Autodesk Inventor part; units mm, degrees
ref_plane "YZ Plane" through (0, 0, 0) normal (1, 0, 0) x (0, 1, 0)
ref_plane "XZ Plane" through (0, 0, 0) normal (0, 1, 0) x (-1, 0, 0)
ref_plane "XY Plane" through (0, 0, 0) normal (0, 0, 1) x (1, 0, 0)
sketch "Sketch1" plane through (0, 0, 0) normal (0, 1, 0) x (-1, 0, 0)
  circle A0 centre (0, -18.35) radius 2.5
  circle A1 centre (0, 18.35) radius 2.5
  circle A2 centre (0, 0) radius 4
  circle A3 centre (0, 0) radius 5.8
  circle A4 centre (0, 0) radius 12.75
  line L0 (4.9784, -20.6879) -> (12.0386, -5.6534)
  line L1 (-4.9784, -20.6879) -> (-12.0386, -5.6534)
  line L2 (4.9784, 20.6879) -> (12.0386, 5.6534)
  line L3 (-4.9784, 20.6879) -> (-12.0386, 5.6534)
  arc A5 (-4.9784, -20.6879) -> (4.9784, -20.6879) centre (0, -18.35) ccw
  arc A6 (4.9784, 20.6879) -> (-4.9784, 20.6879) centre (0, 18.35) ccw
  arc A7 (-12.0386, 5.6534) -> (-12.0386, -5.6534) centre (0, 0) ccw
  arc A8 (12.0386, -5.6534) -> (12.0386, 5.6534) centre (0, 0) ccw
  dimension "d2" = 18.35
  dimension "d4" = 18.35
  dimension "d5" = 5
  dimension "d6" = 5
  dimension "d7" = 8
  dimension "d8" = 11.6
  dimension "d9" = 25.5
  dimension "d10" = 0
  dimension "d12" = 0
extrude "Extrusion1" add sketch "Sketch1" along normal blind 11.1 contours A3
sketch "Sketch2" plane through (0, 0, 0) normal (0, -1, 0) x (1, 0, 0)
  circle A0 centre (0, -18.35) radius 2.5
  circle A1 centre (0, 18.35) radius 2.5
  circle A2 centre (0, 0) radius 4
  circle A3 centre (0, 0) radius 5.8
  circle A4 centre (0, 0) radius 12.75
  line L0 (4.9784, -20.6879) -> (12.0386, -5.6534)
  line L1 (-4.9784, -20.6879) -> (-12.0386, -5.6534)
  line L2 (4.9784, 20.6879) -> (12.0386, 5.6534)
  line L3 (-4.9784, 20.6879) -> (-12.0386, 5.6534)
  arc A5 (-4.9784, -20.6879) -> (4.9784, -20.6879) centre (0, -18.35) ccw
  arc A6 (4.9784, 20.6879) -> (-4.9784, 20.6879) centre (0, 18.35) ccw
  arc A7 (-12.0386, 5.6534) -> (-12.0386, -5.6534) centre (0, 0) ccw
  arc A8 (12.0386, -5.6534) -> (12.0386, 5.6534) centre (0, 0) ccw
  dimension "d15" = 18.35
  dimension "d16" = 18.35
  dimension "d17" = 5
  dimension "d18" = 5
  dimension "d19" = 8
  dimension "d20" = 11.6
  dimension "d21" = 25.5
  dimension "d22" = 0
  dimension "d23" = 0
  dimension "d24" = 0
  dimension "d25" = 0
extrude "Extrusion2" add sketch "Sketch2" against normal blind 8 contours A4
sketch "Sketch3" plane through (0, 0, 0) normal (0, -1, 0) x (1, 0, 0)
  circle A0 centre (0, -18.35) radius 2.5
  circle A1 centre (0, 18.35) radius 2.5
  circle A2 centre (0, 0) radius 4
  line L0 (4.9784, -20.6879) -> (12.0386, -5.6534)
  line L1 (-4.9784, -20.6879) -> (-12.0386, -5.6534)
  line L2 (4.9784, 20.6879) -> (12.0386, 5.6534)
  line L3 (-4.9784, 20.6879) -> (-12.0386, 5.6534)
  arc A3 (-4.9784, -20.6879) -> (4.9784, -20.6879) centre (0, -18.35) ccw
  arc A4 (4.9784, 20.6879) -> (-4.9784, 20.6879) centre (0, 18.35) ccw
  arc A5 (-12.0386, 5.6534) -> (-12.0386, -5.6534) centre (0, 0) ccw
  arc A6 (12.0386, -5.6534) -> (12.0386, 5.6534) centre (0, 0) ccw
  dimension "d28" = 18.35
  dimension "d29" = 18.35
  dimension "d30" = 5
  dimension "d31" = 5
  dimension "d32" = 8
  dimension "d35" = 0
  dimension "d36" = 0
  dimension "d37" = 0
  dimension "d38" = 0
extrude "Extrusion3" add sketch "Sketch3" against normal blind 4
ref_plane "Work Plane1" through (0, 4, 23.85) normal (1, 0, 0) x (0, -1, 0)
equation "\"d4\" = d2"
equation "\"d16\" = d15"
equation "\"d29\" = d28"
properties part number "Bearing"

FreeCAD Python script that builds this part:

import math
import FreeCAD as App
import Part
import Sketcher
from FreeCAD import Vector
Q = App.Units.Quantity

doc = App.newDocument("Part")
body = doc.addObject("PartDesign::Body", "Body")

sketch1 = body.newObject("Sketcher::SketchObject", "Sketch")
sketch1.AttachmentSupport = (doc.getObject("XZ_Plane"), [""])
sketch1.MapMode = "FlatFace"
sketch1.addGeometry([
    Part.Circle(Vector(0, 0, 0), Vector(0, 0, 1), 5.8),
    Part.Circle(Vector(0, 0, 0), Vector(0, 0, 1), 4),
], False)
sketch1.addConstraint([
    Sketcher.Constraint("Coincident", 0, 3, -1, 1),
    Sketcher.Constraint("Coincident", 1, 3, -1, 1),
    Sketcher.Constraint("Diameter", 1, Q("8 mm")),
    Sketcher.Constraint("Diameter", 0, Q("11.6 mm")),
])
pad1 = body.newObject("PartDesign::Pad", "Pad")
pad1.Profile = sketch1
pad1.Length = 11.1
pad1.Reversed = True

sketch2 = body.newObject("Sketcher::SketchObject", "Sketch001")
sketch2.AttachmentSupport = (doc.getObject("XZ_Plane"), [""])
sketch2.MapMode = "FlatFace"
sketch2.addGeometry([
    Part.Circle(Vector(0, 0, 0), Vector(0, 0, 1), 12.75),
    Part.Circle(Vector(0, 0, 0), Vector(0, 0, 1), 5.8),
], False)
sketch2.addConstraint([
    Sketcher.Constraint("Coincident", 0, 3, -1, 1),
    Sketcher.Constraint("Coincident", 1, 3, -1, 1),
    Sketcher.Constraint("Diameter", 0, Q("25.5 mm")),
    Sketcher.Constraint("Diameter", 1, Q("11.6 mm")),
])
pad2 = body.newObject("PartDesign::Pad", "Pad001")
pad2.Profile = sketch2
pad2.Length = 8
pad2.Reversed = True

sketch3 = body.newObject("Sketcher::SketchObject", "Sketch002")
sketch3.AttachmentSupport = (doc.getObject("XZ_Plane"), [""])
sketch3.MapMode = "FlatFace"
sketch3.addGeometry([
    Part.ArcOfCircle(Part.Circle(Vector(0, -18.35, 0), Vector(0, 0, 1), 5.500022), math.radians(-154.844841), math.radians(-25.155159)),
    Part.LineSegment(Vector(4.9784, -20.6879, 0), Vector(12.0386, -5.6534, 0)),
    Part.ArcOfCircle(Part.Circle(Vector(0, 0, 0), Vector(0, 0, 1), 13.299956), math.radians(-25.155036), math.radians(25.155036)),
    Part.LineSegment(Vector(12.0386, 5.6534, 0), Vector(4.9784, 20.6879, 0)),
    Part.ArcOfCircle(Part.Circle(Vector(0, 18.35, 0), Vector(0, 0, 1), 5.500022), math.radians(25.155159), math.radians(154.844841)),
    Part.LineSegment(Vector(-4.9784, 20.6879, 0), Vector(-12.0386, 5.6534, 0)),
    Part.ArcOfCircle(Part.Circle(Vector(0, 0, 0), Vector(0, 0, 1), 13.299956), math.radians(154.844964), math.radians(205.155036)),
    Part.LineSegment(Vector(-12.0386, -5.6534, 0), Vector(-4.9784, -20.6879, 0)),
    Part.Circle(Vector(0, -18.35, 0), Vector(0, 0, 1), 2.5),
    Part.Circle(Vector(0, 0, 0), Vector(0, 0, 1), 4),
    Part.Circle(Vector(0, 18.35, 0), Vector(0, 0, 1), 2.5),
], False)
sketch3.addConstraint([
    Sketcher.Constraint("Tangent", 0, 2, 1, 1),
    Sketcher.Constraint("Tangent", 1, 2, 2, 1),
    Sketcher.Constraint("Tangent", 2, 2, 3, 1),
    Sketcher.Constraint("Tangent", 3, 2, 4, 1),
    Sketcher.Constraint("Tangent", 4, 2, 5, 1),
    Sketcher.Constraint("Tangent", 5, 2, 6, 1),
    Sketcher.Constraint("Tangent", 6, 2, 7, 1),
    Sketcher.Constraint("Tangent", 7, 2, 0, 1),
    Sketcher.Constraint("Coincident", 2, 3, -1, 1),
    Sketcher.Constraint("Coincident", 6, 3, -1, 1),
    Sketcher.Constraint("Coincident", 9, 3, -1, 1),
    Sketcher.Constraint("Coincident", 8, 3, 0, 3),
    Sketcher.Constraint("Coincident", 10, 3, 4, 3),
    Sketcher.Constraint("Equal", 0, 4),
    Sketcher.Constraint("Equal", 2, 6),
    Sketcher.Constraint("Equal", 8, 10),
    Sketcher.Constraint("Symmetric", 0, 3, 4, 3, -1, 1),
    Sketcher.Constraint("PointOnObject", 0, 3, -2),
    Sketcher.Constraint("Diameter", 8, Q("5 mm")),
    Sketcher.Constraint("Diameter", 9, Q("8 mm")),
    Sketcher.Constraint("Radius", 0, Q("5.5 mm")),
    Sketcher.Constraint("Radius", 2, Q("13.3 mm")),
    Sketcher.Constraint("DistanceY", 0, 3, -1, 1, Q("18.35 mm")),
])
pad3 = body.newObject("PartDesign::Pad", "Pad002")
pad3.Profile = sketch3
pad3.Length = 4
pad3.Reversed = True

doc.recompute()
